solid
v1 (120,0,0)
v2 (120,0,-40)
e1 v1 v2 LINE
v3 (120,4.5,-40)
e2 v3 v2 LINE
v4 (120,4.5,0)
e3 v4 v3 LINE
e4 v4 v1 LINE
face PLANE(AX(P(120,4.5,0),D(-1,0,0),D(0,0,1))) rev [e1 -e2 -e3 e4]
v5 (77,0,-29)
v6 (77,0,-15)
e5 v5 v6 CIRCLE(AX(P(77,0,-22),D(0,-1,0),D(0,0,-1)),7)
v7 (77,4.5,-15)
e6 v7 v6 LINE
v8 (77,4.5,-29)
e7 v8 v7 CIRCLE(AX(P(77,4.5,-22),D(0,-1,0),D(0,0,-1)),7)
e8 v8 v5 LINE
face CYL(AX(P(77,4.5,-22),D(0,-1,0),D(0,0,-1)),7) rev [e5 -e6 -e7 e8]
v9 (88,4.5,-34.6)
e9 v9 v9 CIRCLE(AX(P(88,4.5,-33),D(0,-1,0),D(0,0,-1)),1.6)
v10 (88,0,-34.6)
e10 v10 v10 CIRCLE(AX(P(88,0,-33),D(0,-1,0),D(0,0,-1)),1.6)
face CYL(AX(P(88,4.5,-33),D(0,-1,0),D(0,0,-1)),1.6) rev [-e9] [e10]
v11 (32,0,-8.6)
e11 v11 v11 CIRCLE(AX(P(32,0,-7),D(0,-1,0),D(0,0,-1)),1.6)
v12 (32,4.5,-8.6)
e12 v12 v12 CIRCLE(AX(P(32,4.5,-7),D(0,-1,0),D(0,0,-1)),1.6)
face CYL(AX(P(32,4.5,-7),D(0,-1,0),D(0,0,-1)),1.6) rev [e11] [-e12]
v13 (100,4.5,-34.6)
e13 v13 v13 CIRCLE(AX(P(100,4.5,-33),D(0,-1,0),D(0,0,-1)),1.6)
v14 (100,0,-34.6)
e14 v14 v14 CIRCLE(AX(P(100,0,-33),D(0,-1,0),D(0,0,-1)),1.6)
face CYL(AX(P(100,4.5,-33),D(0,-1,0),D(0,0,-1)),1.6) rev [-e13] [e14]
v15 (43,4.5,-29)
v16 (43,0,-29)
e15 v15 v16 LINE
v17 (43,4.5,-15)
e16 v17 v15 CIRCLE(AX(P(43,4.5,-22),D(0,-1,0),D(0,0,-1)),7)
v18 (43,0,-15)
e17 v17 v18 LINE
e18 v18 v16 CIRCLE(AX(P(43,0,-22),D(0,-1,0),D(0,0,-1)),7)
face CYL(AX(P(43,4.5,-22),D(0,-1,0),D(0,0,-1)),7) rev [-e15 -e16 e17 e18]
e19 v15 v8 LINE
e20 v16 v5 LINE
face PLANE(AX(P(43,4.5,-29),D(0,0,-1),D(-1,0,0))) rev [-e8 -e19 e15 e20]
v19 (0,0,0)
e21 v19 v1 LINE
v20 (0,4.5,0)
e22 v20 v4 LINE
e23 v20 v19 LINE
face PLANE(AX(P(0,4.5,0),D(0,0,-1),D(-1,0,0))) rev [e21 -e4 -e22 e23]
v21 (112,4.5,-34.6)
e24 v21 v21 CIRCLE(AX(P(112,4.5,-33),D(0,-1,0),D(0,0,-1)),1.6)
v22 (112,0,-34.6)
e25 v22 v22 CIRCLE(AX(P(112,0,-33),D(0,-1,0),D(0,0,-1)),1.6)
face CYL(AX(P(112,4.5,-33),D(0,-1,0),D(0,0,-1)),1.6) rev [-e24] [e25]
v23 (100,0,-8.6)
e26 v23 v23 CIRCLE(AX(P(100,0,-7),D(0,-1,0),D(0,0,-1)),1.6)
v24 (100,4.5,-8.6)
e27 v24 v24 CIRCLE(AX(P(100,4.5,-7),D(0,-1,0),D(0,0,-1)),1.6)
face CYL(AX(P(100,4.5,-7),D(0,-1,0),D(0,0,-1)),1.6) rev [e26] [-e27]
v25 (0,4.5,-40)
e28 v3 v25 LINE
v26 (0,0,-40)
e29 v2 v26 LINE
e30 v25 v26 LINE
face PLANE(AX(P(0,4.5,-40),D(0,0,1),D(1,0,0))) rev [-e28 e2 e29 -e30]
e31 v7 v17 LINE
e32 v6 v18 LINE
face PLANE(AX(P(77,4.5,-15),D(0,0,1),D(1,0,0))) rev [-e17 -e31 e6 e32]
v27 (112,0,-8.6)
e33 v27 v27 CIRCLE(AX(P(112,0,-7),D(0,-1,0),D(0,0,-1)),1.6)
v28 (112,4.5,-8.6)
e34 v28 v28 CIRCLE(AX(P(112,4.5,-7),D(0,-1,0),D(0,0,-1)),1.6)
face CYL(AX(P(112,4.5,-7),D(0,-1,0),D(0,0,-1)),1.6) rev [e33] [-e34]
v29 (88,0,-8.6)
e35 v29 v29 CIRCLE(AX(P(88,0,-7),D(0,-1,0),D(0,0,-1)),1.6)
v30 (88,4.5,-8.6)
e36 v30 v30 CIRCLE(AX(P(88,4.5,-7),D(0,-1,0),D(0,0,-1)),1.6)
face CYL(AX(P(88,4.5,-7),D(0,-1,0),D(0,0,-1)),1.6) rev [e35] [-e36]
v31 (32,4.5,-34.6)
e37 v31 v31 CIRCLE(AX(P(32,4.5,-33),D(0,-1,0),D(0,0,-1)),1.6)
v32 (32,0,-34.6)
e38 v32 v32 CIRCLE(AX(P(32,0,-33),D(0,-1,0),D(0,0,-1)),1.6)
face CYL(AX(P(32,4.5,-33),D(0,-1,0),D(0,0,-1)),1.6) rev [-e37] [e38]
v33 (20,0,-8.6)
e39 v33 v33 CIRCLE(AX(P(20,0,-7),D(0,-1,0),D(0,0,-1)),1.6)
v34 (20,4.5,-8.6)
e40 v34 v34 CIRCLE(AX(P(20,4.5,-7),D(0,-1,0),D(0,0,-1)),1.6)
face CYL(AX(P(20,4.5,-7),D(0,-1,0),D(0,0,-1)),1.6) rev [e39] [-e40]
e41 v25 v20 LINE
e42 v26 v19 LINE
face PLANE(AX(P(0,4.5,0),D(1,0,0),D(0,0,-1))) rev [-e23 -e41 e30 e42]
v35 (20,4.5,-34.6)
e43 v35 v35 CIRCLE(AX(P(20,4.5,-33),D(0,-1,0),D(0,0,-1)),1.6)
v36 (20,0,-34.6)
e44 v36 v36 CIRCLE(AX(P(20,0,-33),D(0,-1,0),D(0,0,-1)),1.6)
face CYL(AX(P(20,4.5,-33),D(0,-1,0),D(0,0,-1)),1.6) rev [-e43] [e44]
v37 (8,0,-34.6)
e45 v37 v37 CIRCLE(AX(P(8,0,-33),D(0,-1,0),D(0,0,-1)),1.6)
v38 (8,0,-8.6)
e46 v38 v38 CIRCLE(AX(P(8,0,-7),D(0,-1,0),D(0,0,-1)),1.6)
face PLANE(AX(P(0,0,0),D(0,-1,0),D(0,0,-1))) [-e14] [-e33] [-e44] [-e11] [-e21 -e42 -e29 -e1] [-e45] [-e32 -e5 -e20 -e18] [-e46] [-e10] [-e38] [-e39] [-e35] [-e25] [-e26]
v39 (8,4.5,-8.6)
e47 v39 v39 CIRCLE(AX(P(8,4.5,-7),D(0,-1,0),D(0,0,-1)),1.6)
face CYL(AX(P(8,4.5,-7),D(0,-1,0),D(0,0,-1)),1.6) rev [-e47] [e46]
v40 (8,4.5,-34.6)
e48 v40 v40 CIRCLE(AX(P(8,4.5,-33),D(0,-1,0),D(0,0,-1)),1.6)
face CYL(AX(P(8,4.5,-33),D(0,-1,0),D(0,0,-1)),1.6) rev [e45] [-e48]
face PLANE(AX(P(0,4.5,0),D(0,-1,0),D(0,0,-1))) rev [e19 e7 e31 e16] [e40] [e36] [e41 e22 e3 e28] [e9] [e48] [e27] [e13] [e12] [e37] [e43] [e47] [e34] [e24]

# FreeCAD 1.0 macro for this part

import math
import FreeCAD as App
import Part
import Sketcher

V = App.Vector


def add_polygon(sketch, points):
    """Adds a closed chain of lines whose ends are joined by coincident constraints."""
    first, n = sketch.GeometryCount, len(points)
    for a, b in zip(points, points[1:] + points[:1]):
        sketch.addGeometry(Part.LineSegment(App.Vector(*a, 0), App.Vector(*b, 0)), False)
    for i in range(n):
        sketch.addConstraint(Sketcher.Constraint("Coincident", first + i, 2, first + (i + 1) % n, 1))

doc = App.newDocument("Part")
body = doc.addObject("PartDesign::Body", "Body")

# Sketch on XZ plane
sketch1 = doc.addObject("Sketcher::SketchObject", "Sketch")
body.addObject(sketch1)
sketch1.AttachmentSupport = (doc.XZ_Plane, [""])
sketch1.MapMode = "FlatFace"
add_polygon(sketch1, [(0, -40), (0, 0), (120, 0), (120, -40)])  # lines 0-3
sketch1.addConstraint([
    Sketcher.Constraint("Vertical", 0),
    Sketcher.Constraint("Horizontal", 1),
    Sketcher.Constraint("Vertical", 2),
    Sketcher.Constraint("Horizontal", 3),
    Sketcher.Constraint("Coincident", 0, 2, -1, 1),
    Sketcher.Constraint("DistanceX", 1, 1, 1, 2, 120.0),
    Sketcher.Constraint("DistanceY", 0, 1, 0, 2, 40.0),
])
pad1 = doc.addObject("PartDesign::Pad", "Pad")
body.addObject(pad1)
pad1.Profile = sketch1
pad1.Length = 4.5
pad1.Reversed = True

# Sketch on XZ plane
sketch2 = doc.addObject("Sketcher::SketchObject", "Sketch001")
body.addObject(sketch2)
sketch2.AttachmentSupport = (doc.XZ_Plane, [""])
sketch2.MapMode = "FlatFace"
sketch2.addGeometry([
    Part.Circle(V(8, -7, 0), V(0, 0, 1), 1.6),  # 0
    Part.Circle(V(32, -33, 0), V(0, 0, 1), 1.6),  # 1
    Part.Circle(V(32, -7, 0), V(0, 0, 1), 1.6),  # 2
    Part.Circle(V(100, -33, 0), V(0, 0, 1), 1.6),  # 3
    Part.Circle(V(20, -33, 0), V(0, 0, 1), 1.6),  # 4
    Part.Circle(V(100, -7, 0), V(0, 0, 1), 1.6),  # 5
    Part.Circle(V(20, -7, 0), V(0, 0, 1), 1.6),  # 6
    Part.Circle(V(112, -33, 0), V(0, 0, 1), 1.6),  # 7
    Part.Circle(V(112, -7, 0), V(0, 0, 1), 1.6),  # 8
    Part.Circle(V(8, -33, 0), V(0, 0, 1), 1.6),  # 9
    Part.Circle(V(88, -33, 0), V(0, 0, 1), 1.6),  # 10
    Part.Circle(V(88, -7, 0), V(0, 0, 1), 1.6),  # 11
    Part.LineSegment(V(77, -15, 0), V(43, -15, 0)),  # 12
    Part.ArcOfCircle(Part.Circle(V(43, -22, 0), V(0, 0, 1), 7), math.radians(90), math.radians(270)),  # 13
    Part.LineSegment(V(43, -29, 0), V(77, -29, 0)),  # 14
    Part.ArcOfCircle(Part.Circle(V(77, -22, 0), V(0, 0, 1), 7), math.radians(-90), math.radians(90)),  # 15
], False)
sketch2.addConstraint([
    Sketcher.Constraint("Tangent", 12, 2, 13, 1),
    Sketcher.Constraint("Tangent", 13, 2, 14, 1),
    Sketcher.Constraint("Tangent", 14, 2, 15, 1),
    Sketcher.Constraint("Tangent", 15, 2, 12, 1),
    Sketcher.Constraint("Horizontal", 12),
    Sketcher.Constraint("Horizontal", 14),
    Sketcher.Constraint("Equal", 0, 1),
    Sketcher.Constraint("Equal", 1, 2),
    Sketcher.Constraint("Equal", 2, 3),
    Sketcher.Constraint("Equal", 3, 4),
    Sketcher.Constraint("Equal", 4, 5),
    Sketcher.Constraint("Equal", 5, 6),
    Sketcher.Constraint("Equal", 6, 7),
    Sketcher.Constraint("Equal", 7, 8),
    Sketcher.Constraint("Equal", 8, 9),
    Sketcher.Constraint("Equal", 9, 10),
    Sketcher.Constraint("Equal", 10, 11),
    Sketcher.Constraint("Horizontal", 0, 3, 2, 3),
    Sketcher.Constraint("Horizontal", 1, 3, 3, 3),
    Sketcher.Constraint("Horizontal", 3, 3, 4, 3),
    Sketcher.Constraint("Horizontal", 2, 3, 5, 3),
    Sketcher.Constraint("Horizontal", 5, 3, 6, 3),
    Sketcher.Constraint("Horizontal", 4, 3, 7, 3),
    Sketcher.Constraint("Horizontal", 6, 3, 8, 3),
    Sketcher.Constraint("Horizontal", 7, 3, 9, 3),
    Sketcher.Constraint("Horizontal", 9, 3, 10, 3),
    Sketcher.Constraint("Horizontal", 8, 3, 11, 3),
    Sketcher.Constraint("Vertical", 1, 3, 2, 3),
    Sketcher.Constraint("Vertical", 3, 3, 5, 3),
    Sketcher.Constraint("Vertical", 4, 3, 6, 3),
    Sketcher.Constraint("Vertical", 7, 3, 8, 3),
    Sketcher.Constraint("Vertical", 0, 3, 9, 3),
    Sketcher.Constraint("Vertical", 10, 3, 11, 3),
    Sketcher.Constraint("Radius", 13, 7.0),
    Sketcher.Constraint("Diameter", 0, 3.2),
    Sketcher.Constraint("DistanceX", 12, 2, 12, 1, 34.0),
    Sketcher.Constraint("DistanceX", -1, 1, 0, 3, 8.0),
    Sketcher.Constraint("DistanceY", 0, 3, -1, 1, 7.0),
    Sketcher.Constraint("DistanceX", -1, 1, 1, 3, 32.0),
    Sketcher.Constraint("DistanceY", 1, 3, -1, 1, 33.0),
    Sketcher.Constraint("DistanceX", -1, 1, 3, 3, 100.0),
    Sketcher.Constraint("DistanceX", -1, 1, 4, 3, 20.0),
    Sketcher.Constraint("DistanceX", -1, 1, 7, 3, 112.0),
    Sketcher.Constraint("DistanceX", -1, 1, 10, 3, 88.0),
    Sketcher.Constraint("DistanceX", -1, 1, 13, 3, 43.0),
    Sketcher.Constraint("DistanceY", 13, 3, -1, 1, 22.0),
])
pocket1 = doc.addObject("PartDesign::Pocket", "Pocket")
body.addObject(pocket1)
pocket1.Profile = sketch2
pocket1.Type = "ThroughAll"

doc.recompute()
